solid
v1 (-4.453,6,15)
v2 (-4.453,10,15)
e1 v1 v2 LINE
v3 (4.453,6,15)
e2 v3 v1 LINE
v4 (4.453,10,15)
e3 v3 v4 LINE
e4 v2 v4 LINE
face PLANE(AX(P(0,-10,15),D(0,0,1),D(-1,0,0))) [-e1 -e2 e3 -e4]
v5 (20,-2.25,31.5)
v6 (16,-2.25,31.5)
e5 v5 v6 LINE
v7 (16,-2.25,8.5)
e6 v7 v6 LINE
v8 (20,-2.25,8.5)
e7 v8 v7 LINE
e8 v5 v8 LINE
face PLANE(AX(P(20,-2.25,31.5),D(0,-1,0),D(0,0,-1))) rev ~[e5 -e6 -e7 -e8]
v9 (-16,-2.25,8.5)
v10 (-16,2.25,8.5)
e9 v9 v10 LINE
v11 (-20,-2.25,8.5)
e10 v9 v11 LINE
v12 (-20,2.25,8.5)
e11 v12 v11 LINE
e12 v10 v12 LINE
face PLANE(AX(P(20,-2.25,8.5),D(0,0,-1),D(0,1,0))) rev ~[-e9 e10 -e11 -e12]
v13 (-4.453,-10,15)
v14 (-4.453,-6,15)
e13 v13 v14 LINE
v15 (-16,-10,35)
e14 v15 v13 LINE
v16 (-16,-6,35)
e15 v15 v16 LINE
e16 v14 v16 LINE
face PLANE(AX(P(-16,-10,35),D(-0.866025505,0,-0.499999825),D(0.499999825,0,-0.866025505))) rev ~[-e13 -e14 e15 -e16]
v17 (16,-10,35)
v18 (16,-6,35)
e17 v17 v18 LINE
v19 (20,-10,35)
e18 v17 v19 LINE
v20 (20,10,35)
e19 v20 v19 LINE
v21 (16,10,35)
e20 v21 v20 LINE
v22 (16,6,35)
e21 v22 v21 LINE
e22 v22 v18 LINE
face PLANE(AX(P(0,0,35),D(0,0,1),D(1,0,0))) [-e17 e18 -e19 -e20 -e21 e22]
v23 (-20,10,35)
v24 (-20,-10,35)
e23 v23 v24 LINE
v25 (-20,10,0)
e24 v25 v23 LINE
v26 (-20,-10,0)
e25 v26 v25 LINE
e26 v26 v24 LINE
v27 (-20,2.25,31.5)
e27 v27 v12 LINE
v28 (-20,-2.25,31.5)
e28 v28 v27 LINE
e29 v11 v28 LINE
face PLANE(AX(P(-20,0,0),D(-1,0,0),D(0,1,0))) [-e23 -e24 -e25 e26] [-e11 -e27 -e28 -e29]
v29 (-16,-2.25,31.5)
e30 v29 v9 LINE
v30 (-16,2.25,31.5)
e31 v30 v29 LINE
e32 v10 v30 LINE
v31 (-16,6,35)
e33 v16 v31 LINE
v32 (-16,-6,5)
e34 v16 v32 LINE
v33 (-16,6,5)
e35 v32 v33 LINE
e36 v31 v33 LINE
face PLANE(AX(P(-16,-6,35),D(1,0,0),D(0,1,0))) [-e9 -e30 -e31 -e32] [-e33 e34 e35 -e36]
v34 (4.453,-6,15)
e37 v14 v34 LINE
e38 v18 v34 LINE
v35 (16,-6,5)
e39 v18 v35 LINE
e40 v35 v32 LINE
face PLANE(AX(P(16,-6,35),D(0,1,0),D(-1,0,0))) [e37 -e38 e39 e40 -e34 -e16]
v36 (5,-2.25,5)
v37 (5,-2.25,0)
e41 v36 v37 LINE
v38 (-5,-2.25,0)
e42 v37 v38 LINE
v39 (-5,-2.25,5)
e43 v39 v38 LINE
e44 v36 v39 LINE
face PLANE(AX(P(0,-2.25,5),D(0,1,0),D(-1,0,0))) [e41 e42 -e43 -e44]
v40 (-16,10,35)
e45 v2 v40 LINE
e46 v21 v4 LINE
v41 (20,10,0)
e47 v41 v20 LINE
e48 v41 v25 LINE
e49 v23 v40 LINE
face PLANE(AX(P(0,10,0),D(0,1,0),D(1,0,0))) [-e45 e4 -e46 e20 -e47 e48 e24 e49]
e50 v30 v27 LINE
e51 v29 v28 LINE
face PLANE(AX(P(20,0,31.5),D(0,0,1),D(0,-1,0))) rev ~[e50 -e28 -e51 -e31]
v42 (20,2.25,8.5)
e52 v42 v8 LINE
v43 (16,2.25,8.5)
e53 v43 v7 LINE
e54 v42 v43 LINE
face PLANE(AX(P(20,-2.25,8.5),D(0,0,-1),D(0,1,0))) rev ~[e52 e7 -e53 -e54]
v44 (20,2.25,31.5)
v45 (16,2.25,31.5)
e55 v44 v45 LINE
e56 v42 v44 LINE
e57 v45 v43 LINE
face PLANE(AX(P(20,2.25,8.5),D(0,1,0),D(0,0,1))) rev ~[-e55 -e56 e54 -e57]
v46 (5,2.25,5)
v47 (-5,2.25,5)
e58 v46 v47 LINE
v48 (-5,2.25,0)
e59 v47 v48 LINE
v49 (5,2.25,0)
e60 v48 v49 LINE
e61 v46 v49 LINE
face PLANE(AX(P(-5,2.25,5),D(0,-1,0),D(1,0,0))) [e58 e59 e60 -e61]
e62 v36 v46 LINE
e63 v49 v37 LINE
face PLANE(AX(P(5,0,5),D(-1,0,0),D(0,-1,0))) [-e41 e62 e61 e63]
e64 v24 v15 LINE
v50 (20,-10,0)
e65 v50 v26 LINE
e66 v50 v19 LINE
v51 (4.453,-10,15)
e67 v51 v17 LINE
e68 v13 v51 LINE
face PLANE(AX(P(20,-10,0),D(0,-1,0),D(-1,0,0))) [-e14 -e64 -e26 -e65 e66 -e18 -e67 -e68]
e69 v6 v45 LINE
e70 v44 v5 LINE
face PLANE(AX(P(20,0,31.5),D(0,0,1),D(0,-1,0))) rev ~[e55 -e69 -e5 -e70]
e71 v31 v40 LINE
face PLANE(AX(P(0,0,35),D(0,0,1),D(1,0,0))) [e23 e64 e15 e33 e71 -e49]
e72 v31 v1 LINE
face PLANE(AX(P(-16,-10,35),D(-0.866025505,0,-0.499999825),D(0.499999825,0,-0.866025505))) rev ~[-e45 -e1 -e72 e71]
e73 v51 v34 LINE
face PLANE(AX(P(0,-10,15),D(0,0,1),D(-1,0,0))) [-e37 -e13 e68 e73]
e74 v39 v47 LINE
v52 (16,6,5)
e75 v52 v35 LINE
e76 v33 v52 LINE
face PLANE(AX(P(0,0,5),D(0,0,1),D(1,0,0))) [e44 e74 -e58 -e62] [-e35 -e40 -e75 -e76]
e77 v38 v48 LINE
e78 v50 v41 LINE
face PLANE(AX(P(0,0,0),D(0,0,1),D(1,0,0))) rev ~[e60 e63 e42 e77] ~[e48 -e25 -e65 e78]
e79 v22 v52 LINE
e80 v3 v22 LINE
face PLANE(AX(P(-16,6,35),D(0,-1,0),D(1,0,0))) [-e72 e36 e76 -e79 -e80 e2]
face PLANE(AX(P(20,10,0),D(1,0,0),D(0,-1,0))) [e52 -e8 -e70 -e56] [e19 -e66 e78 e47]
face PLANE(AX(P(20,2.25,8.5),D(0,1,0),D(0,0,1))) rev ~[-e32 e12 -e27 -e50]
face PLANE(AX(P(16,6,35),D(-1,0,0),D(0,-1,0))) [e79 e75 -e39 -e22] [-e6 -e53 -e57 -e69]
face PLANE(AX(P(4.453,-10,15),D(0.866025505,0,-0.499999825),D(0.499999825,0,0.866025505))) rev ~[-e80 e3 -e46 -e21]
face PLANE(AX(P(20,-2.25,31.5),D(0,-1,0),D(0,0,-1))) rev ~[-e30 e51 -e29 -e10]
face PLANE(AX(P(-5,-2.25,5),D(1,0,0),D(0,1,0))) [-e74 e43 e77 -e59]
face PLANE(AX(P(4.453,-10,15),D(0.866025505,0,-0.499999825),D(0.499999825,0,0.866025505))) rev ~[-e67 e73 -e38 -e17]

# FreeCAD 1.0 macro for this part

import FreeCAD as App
import Part
import Sketcher
from FreeCAD import Vector
Q = App.Units.Quantity

doc = App.newDocument("Part")
body = doc.addObject("PartDesign::Body", "Body")

sketch1 = body.newObject("Sketcher::SketchObject", "Sketch")
sketch1.AttachmentSupport = (doc.getObject("XY_Plane"), [""])
sketch1.MapMode = "FlatFace"
sketch1.addGeometry([
    Part.LineSegment(Vector(20, 10, 0), Vector(-20, 10, 0)),
    Part.LineSegment(Vector(-20, 10, 0), Vector(-20, -10, 0)),
    Part.LineSegment(Vector(-20, -10, 0), Vector(20, -10, 0)),
    Part.LineSegment(Vector(20, -10, 0), Vector(20, 10, 0)),
], False)
sketch1.addConstraint([
    Sketcher.Constraint("Coincident", 0, 2, 1, 1),
    Sketcher.Constraint("Coincident", 1, 2, 2, 1),
    Sketcher.Constraint("Coincident", 2, 2, 3, 1),
    Sketcher.Constraint("Coincident", 3, 2, 0, 1),
    Sketcher.Constraint("Horizontal", 0),
    Sketcher.Constraint("Vertical", 1),
    Sketcher.Constraint("Horizontal", 2),
    Sketcher.Constraint("Vertical", 3),
    Sketcher.Constraint("Symmetric", 0, 2, 2, 2, -1, 1),
    Sketcher.Constraint("DistanceX", 0, 2, 0, 1, 40.0),
    Sketcher.Constraint("DistanceY", 1, 2, 1, 1, 20.0),
])
pad1 = body.newObject("PartDesign::Pad", "Pad")
pad1.Profile = sketch1
pad1.Length = 35

sketch2 = body.newObject("Sketcher::SketchObject", "Sketch001")
sketch2.AttachmentSupport = (doc.getObject("XY_Plane"), [""])
sketch2.MapMode = "FlatFace"
sketch2.AttachmentOffset = App.Placement(Vector(0, 0, 35), App.Rotation())
sketch2.addGeometry([
    Part.LineSegment(Vector(16, 6, 0), Vector(-16, 6, 0)),
    Part.LineSegment(Vector(-16, 6, 0), Vector(-16, -6, 0)),
    Part.LineSegment(Vector(-16, -6, 0), Vector(16, -6, 0)),
    Part.LineSegment(Vector(16, -6, 0), Vector(16, 6, 0)),
], False)
sketch2.addConstraint([
    Sketcher.Constraint("Coincident", 0, 2, 1, 1),
    Sketcher.Constraint("Coincident", 1, 2, 2, 1),
    Sketcher.Constraint("Coincident", 2, 2, 3, 1),
    Sketcher.Constraint("Coincident", 3, 2, 0, 1),
    Sketcher.Constraint("Horizontal", 0),
    Sketcher.Constraint("Vertical", 1),
    Sketcher.Constraint("Horizontal", 2),
    Sketcher.Constraint("Vertical", 3),
    Sketcher.Constraint("Symmetric", 0, 2, 2, 2, -1, 1),
    Sketcher.Constraint("DistanceX", 0, 2, 0, 1, 32.0),
    Sketcher.Constraint("DistanceY", 1, 2, 1, 1, 12.0),
])
pocket1 = body.newObject("PartDesign::Pocket", "Pocket")
pocket1.Profile = sketch2
pocket1.Length = 30

sketch3 = body.newObject("Sketcher::SketchObject", "Sketch002")
sketch3.AttachmentSupport = (doc.getObject("XY_Plane"), [""])
sketch3.MapMode = "FlatFace"
sketch3.AttachmentOffset = App.Placement(Vector(0, 0, 5), App.Rotation())
sketch3.addGeometry([
    Part.LineSegment(Vector(-5, -2.25, 0), Vector(5, -2.25, 0)),
    Part.LineSegment(Vector(5, -2.25, 0), Vector(5, 2.25, 0)),
    Part.LineSegment(Vector(5, 2.25, 0), Vector(-5, 2.25, 0)),
    Part.LineSegment(Vector(-5, 2.25, 0), Vector(-5, -2.25, 0)),
], False)
sketch3.addConstraint([
    Sketcher.Constraint("Coincident", 0, 2, 1, 1),
    Sketcher.Constraint("Coincident", 1, 2, 2, 1),
    Sketcher.Constraint("Coincident", 2, 2, 3, 1),
    Sketcher.Constraint("Coincident", 3, 2, 0, 1),
    Sketcher.Constraint("Horizontal", 0),
    Sketcher.Constraint("Vertical", 1),
    Sketcher.Constraint("Horizontal", 2),
    Sketcher.Constraint("Vertical", 3),
    Sketcher.Constraint("Symmetric", 0, 2, 2, 2, -1, 1),
    Sketcher.Constraint("DistanceX", 0, 1, 0, 2, 10.0),
    Sketcher.Constraint("DistanceY", 1, 1, 1, 2, 4.5),
])
pocket2 = body.newObject("PartDesign::Pocket", "Pocket001")
pocket2.Profile = sketch3
pocket2.Type = "ThroughAll"

sketch4 = body.newObject("Sketcher::SketchObject", "Sketch003")
sketch4.AttachmentSupport = (doc.getObject("YZ_Plane"), [""])
sketch4.MapMode = "FlatFace"
sketch4.AttachmentOffset = App.Placement(Vector(0, 0, 20), App.Rotation())
sketch4.addGeometry([
    Part.LineSegment(Vector(-2.25, 8.5, 0), Vector(2.25, 8.5, 0)),
    Part.LineSegment(Vector(2.25, 8.5, 0), Vector(2.25, 31.5, 0)),
    Part.LineSegment(Vector(2.25, 31.5, 0), Vector(-2.25, 31.5, 0)),
    Part.LineSegment(Vector(-2.25, 31.5, 0), Vector(-2.25, 8.5, 0)),
], False)
sketch4.addConstraint([
    Sketcher.Constraint("Coincident", 0, 2, 1, 1),
    Sketcher.Constraint("Coincident", 1, 2, 2, 1),
    Sketcher.Constraint("Coincident", 2, 2, 3, 1),
    Sketcher.Constraint("Coincident", 3, 2, 0, 1),
    Sketcher.Constraint("Horizontal", 0),
    Sketcher.Constraint("Vertical", 1),
    Sketcher.Constraint("Horizontal", 2),
    Sketcher.Constraint("Vertical", 3),
    Sketcher.Constraint("DistanceY", 1, 1, 1, 2, 23.0),
    Sketcher.Constraint("DistanceX", 0, 1, 0, 2, 4.5),
    Sketcher.Constraint("DistanceY", -1, 1, 0, 2, 8.5),
    Sketcher.Constraint("DistanceX", -1, 1, 0, 2, 2.25),
])
pocket3 = body.newObject("PartDesign::Pocket", "Pocket002")
pocket3.Profile = sketch4
pocket3.Type = "ThroughAll"

sketch5 = body.newObject("Sketcher::SketchObject", "Sketch004")
sketch5.AttachmentSupport = (doc.getObject("XZ_Plane"), [""])
sketch5.MapMode = "FlatFace"
sketch5.AttachmentOffset = App.Placement(Vector(0, 0, 10), App.Rotation())
sketch5.addGeometry([
    Part.LineSegment(Vector(-16, 35, 0), Vector(-4.453, 15, 0)),
    Part.LineSegment(Vector(-4.453, 15, 0), Vector(4.453, 15, 0)),
    Part.LineSegment(Vector(4.453, 15, 0), Vector(16, 35, 0)),
    Part.LineSegment(Vector(16, 35, 0), Vector(-16, 35, 0)),
], False)
sketch5.addConstraint([
    Sketcher.Constraint("Coincident", 0, 2, 1, 1),
    Sketcher.Constraint("Coincident", 1, 2, 2, 1),
    Sketcher.Constraint("Coincident", 2, 2, 3, 1),
    Sketcher.Constraint("Coincident", 3, 2, 0, 1),
    Sketcher.Constraint("Horizontal", 1),
    Sketcher.Constraint("Horizontal", 3),
    Sketcher.Constraint("Equal", 0, 2),
    Sketcher.Constraint("DistanceX", 3, 2, 3, 1, 32.0),
    Sketcher.Constraint("Angle", 0, Q("-60 deg")),
    Sketcher.Constraint("DistanceY", -1, 1, 0, 2, 15.0),
    Sketcher.Constraint("DistanceX", -1, 1, 2, 2, 16.0),
    Sketcher.Constraint("DistanceY", -1, 1, 2, 2, 35.0),
])
pocket4 = body.newObject("PartDesign::Pocket", "Pocket003")
pocket4.Profile = sketch5
pocket4.Type = "ThroughAll"

doc.recompute()
